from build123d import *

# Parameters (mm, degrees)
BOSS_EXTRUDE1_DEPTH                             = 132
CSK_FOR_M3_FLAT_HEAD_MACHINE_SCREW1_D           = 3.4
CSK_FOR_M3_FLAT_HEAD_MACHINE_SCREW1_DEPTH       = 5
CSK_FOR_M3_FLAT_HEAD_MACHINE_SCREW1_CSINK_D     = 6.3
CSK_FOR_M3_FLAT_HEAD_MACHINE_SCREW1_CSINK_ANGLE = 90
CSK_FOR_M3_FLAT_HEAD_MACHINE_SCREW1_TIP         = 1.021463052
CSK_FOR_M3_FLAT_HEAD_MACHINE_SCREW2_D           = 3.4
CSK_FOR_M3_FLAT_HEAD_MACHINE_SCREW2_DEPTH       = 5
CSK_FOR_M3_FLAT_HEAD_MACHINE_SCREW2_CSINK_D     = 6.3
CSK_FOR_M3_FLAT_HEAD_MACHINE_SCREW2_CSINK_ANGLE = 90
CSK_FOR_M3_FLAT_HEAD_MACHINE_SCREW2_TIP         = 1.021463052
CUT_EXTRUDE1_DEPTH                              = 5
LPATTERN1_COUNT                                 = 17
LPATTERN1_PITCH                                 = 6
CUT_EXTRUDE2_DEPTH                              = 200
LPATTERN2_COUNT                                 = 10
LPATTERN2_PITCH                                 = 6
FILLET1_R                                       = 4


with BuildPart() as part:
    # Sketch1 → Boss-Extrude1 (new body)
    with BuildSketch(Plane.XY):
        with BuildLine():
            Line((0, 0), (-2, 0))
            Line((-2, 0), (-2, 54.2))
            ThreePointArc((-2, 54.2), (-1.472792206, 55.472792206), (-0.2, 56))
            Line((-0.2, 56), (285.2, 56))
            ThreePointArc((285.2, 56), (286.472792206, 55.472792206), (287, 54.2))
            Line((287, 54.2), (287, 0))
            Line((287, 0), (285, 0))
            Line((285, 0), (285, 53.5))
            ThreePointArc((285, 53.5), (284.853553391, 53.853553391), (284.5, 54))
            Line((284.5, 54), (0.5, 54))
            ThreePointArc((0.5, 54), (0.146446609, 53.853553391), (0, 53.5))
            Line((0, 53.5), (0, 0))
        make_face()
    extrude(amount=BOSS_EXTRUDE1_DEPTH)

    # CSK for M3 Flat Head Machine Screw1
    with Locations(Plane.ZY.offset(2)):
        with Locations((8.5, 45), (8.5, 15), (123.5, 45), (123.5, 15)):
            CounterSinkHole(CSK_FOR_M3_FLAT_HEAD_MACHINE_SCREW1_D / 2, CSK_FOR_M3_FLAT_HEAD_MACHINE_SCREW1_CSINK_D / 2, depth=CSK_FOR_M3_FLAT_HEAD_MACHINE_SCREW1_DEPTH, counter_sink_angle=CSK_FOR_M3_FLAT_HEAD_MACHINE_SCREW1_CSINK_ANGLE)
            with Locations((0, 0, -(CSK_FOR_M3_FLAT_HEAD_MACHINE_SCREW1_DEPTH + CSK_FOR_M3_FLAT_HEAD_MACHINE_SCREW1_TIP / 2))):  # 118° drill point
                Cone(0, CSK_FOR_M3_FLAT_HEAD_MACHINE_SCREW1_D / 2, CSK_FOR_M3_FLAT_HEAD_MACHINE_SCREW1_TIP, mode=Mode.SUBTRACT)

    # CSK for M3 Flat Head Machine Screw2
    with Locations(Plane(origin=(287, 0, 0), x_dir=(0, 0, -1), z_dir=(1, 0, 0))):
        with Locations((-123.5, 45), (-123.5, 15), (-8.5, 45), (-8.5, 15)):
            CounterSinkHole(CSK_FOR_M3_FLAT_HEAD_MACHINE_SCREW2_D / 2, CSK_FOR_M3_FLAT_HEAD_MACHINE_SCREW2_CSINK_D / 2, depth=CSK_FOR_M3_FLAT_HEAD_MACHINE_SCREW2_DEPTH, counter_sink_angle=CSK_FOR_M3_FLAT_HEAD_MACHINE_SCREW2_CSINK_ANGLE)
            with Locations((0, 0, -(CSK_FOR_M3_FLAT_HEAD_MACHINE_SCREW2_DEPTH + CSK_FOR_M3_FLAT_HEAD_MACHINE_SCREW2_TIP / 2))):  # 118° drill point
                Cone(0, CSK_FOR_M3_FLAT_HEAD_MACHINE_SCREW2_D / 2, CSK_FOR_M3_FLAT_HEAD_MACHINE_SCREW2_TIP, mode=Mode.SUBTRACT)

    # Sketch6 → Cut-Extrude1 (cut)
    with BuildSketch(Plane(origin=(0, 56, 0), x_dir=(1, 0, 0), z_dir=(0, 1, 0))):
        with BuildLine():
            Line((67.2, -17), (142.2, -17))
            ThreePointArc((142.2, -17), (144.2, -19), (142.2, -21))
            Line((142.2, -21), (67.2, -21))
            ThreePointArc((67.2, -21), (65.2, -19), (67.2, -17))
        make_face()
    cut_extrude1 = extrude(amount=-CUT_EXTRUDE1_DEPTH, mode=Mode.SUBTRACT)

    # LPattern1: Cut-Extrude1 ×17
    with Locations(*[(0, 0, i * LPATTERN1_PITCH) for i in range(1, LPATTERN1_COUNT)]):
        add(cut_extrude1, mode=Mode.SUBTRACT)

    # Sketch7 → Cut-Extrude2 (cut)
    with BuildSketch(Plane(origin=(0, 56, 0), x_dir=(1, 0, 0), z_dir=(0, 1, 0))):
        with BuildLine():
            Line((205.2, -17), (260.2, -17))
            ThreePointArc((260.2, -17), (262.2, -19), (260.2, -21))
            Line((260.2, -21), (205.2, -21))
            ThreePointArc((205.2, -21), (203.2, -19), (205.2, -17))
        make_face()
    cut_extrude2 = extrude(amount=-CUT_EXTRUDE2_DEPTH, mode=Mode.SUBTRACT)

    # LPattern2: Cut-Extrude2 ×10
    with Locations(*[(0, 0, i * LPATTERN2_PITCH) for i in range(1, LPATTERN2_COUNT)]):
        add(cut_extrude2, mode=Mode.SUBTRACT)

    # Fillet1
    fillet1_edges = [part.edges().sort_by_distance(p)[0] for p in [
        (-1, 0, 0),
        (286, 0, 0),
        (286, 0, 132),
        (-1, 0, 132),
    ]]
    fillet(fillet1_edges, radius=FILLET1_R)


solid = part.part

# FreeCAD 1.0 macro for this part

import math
import FreeCAD as App
import Part
import Sketcher
Q = App.Units.Quantity


def edges_at(feature, points):
    """Names of the edges that pass closest to the given points."""
    edges = feature.Shape.Edges
    near = lambda p: min(range(len(edges)), key=lambda i: edges[i].distToShape(Part.Vertex(*p))[0])
    return sorted({f"Edge{near(p) + 1}" for p in points})

doc = App.newDocument("Part")
body = doc.addObject("PartDesign::Body", "Body")

# Sketch on XY plane
sketch1 = body.newObject("Sketcher::SketchObject", "Sketch")
sketch1.AttachmentSupport = (doc.getObject("XY_Plane"), [""])
sketch1.MapMode = "FlatFace"
sketch1.addGeometry([
    Part.LineSegment(App.Vector(-2, 0, 0), App.Vector(0, 0, 0)),  # 0
    Part.LineSegment(App.Vector(0, 0, 0), App.Vector(0, 53.5, 0)),  # 1
    Part.ArcOfCircle(Part.Circle(App.Vector(0.5, 53.5, 0), App.Vector(0, 0, 1), 0.5), math.radians(90), math.radians(180)),  # 2
    Part.LineSegment(App.Vector(0.5, 54, 0), App.Vector(284.5, 54, 0)),  # 3
    Part.ArcOfCircle(Part.Circle(App.Vector(284.5, 53.5, 0), App.Vector(0, 0, 1), 0.5), math.radians(0), math.radians(90)),  # 4
    Part.LineSegment(App.Vector(285, 53.5, 0), App.Vector(285, 0, 0)),  # 5
    Part.LineSegment(App.Vector(285, 0, 0), App.Vector(287, 0, 0)),  # 6
    Part.LineSegment(App.Vector(287, 0, 0), App.Vector(287, 54.2, 0)),  # 7
    Part.ArcOfCircle(Part.Circle(App.Vector(285.2, 54.2, 0), App.Vector(0, 0, 1), 1.8), math.radians(0), math.radians(90)),  # 8
    Part.LineSegment(App.Vector(285.2, 56, 0), App.Vector(-0.2, 56, 0)),  # 9
    Part.ArcOfCircle(Part.Circle(App.Vector(-0.2, 54.2, 0), App.Vector(0, 0, 1), 1.8), math.radians(90), math.radians(180)),  # 10
    Part.LineSegment(App.Vector(-2, 54.2, 0), App.Vector(-2, 0, 0)),  # 11
], False)
sketch1.addConstraint([
    Sketcher.Constraint("Coincident", 0, 2, 1, 1),
    Sketcher.Constraint("Tangent", 1, 2, 2, 2),
    Sketcher.Constraint("Tangent", 2, 1, 3, 1),
    Sketcher.Constraint("Tangent", 3, 2, 4, 2),
    Sketcher.Constraint("Tangent", 4, 1, 5, 1),
    Sketcher.Constraint("Coincident", 5, 2, 6, 1),
    Sketcher.Constraint("Coincident", 6, 2, 7, 1),
    Sketcher.Constraint("Tangent", 7, 2, 8, 1),
    Sketcher.Constraint("Tangent", 8, 2, 9, 1),
    Sketcher.Constraint("Tangent", 9, 2, 10, 1),
    Sketcher.Constraint("Tangent", 10, 2, 11, 1),
    Sketcher.Constraint("Coincident", 11, 2, 0, 1),
    Sketcher.Constraint("Horizontal", 0),
    Sketcher.Constraint("Vertical", 1),
    Sketcher.Constraint("Horizontal", 3),
    Sketcher.Constraint("Vertical", 5),
    Sketcher.Constraint("Horizontal", 6),
    Sketcher.Constraint("Vertical", 7),
    Sketcher.Constraint("Horizontal", 9),
    Sketcher.Constraint("Vertical", 11),
    Sketcher.Constraint("Coincident", 0, 2, -1, 1),
    Sketcher.Constraint("Equal", 2, 4),
    Sketcher.Constraint("Equal", 8, 10),
    Sketcher.Constraint("PointOnObject", 5, 2, -1),
    Sketcher.Constraint("Equal", 0, 6),
    Sketcher.Constraint("Radius", 2, Q("0.5 mm")),
    Sketcher.Constraint("Radius", 8, Q("1.8 mm")),
    Sketcher.Constraint("DistanceX", 0, 1, 0, 2, Q("2 mm")),
    Sketcher.Constraint("DistanceX", 3, 1, 3, 2, Q("284 mm")),
    Sketcher.Constraint("DistanceY", 1, 1, 1, 2, Q("53.5 mm")),
    Sketcher.Constraint("DistanceY", 7, 1, 7, 2, Q("54.2 mm")),
])
pad1 = body.newObject("PartDesign::Pad", "Pad")
pad1.Profile = sketch1
pad1.Length = 132

# Sketch on YZ plane
sketch2 = body.newObject("Sketcher::SketchObject", "Sketch001")
sketch2.AttachmentSupport = (doc.getObject("YZ_Plane"), [""])
sketch2.MapMode = "FlatFace"
sketch2.AttachmentOffset = App.Placement(App.Vector(0, 0, -2), App.Rotation())
sketch2.addGeometry([
    Part.Circle(App.Vector(45, 8.5, 0), App.Vector(0, 0, 1), 1.7),
    Part.Circle(App.Vector(15, 8.5, 0), App.Vector(0, 0, 1), 1.7),
    Part.Circle(App.Vector(45, 123.5, 0), App.Vector(0, 0, 1), 1.7),
    Part.Circle(App.Vector(15, 123.5, 0), App.Vector(0, 0, 1), 1.7),
], False)
sketch2.addConstraint([
    Sketcher.Constraint("Equal", 0, 1),
    Sketcher.Constraint("Equal", 1, 2),
    Sketcher.Constraint("Equal", 2, 3),
    Sketcher.Constraint("Horizontal", 0, 3, 1, 3),
    Sketcher.Constraint("Horizontal", 2, 3, 3, 3),
    Sketcher.Constraint("Vertical", 0, 3, 2, 3),
    Sketcher.Constraint("Vertical", 1, 3, 3, 3),
    Sketcher.Constraint("Diameter", 0, Q("3.4 mm")),
    Sketcher.Constraint("DistanceX", -1, 1, 0, 3, Q("45 mm")),
    Sketcher.Constraint("DistanceX", -1, 1, 1, 3, Q("15 mm")),
    Sketcher.Constraint("DistanceY", 0, 3, 2, 3, Q("115 mm")),
    Sketcher.Constraint("DistanceY", -1, 1, 0, 3, Q("8.5 mm")),
])
doc.recompute()
hole = body.newObject("PartDesign::Hole", "Hole")
hole.Profile = sketch2
hole.ThreadType = "None"
hole.Diameter = 3.4
hole.DepthType = "Dimension"
hole.Depth = 5
hole.DrillPoint = "Angled"
hole.DrillPointAngle = 118
hole.HoleCutType = "Countersink"
hole.HoleCutDiameter = 6.3
hole.HoleCutCountersinkAngle = 90
hole.Reversed = True

# Sketch on YZ plane
sketch3 = body.newObject("Sketcher::SketchObject", "Sketch002")
sketch3.AttachmentSupport = (doc.getObject("YZ_Plane"), [""])
sketch3.MapMode = "FlatFace"
sketch3.AttachmentOffset = App.Placement(App.Vector(0, 0, 287), App.Rotation())
sketch3.addGeometry([
    Part.Circle(App.Vector(45, 123.5, 0), App.Vector(0, 0, 1), 1.7),
    Part.Circle(App.Vector(15, 123.5, 0), App.Vector(0, 0, 1), 1.7),
    Part.Circle(App.Vector(45, 8.5, 0), App.Vector(0, 0, 1), 1.7),
    Part.Circle(App.Vector(15, 8.5, 0), App.Vector(0, 0, 1), 1.7),
], False)
sketch3.addConstraint([
    Sketcher.Constraint("Equal", 0, 1),
    Sketcher.Constraint("Equal", 1, 2),
    Sketcher.Constraint("Equal", 2, 3),
    Sketcher.Constraint("Horizontal", 0, 3, 1, 3),
    Sketcher.Constraint("Horizontal", 2, 3, 3, 3),
    Sketcher.Constraint("Vertical", 0, 3, 2, 3),
    Sketcher.Constraint("Vertical", 1, 3, 3, 3),
    Sketcher.Constraint("Diameter", 0, Q("3.4 mm")),
    Sketcher.Constraint("DistanceX", -1, 1, 0, 3, Q("45 mm")),
    Sketcher.Constraint("DistanceX", -1, 1, 1, 3, Q("15 mm")),
    Sketcher.Constraint("DistanceY", 2, 3, 0, 3, Q("115 mm")),
    Sketcher.Constraint("DistanceY", -1, 1, 0, 3, Q("123.5 mm")),
])
doc.recompute()
hole2 = body.newObject("PartDesign::Hole", "Hole001")
hole2.Profile = sketch3
hole2.ThreadType = "None"
hole2.Diameter = 3.4
hole2.DepthType = "Dimension"
hole2.Depth = 5
hole2.DrillPoint = "Angled"
hole2.DrillPointAngle = 118
hole2.HoleCutType = "Countersink"
hole2.HoleCutDiameter = 6.3
hole2.HoleCutCountersinkAngle = 90

# Sketch on XZ plane
sketch4 = body.newObject("Sketcher::SketchObject", "Sketch003")
sketch4.AttachmentSupport = (doc.getObject("XZ_Plane"), [""])
sketch4.MapMode = "FlatFace"
sketch4.AttachmentOffset = App.Placement(App.Vector(0, 0, -56), App.Rotation())
sketch4.addGeometry([
    Part.LineSegment(App.Vector(142.2, 17, 0), App.Vector(67.2, 17, 0)),
    Part.ArcOfCircle(Part.Circle(App.Vector(67.2, 19, 0), App.Vector(0, 0, 1), 2), math.radians(90), math.radians(270)),
    Part.LineSegment(App.Vector(67.2, 21, 0), App.Vector(142.2, 21, 0)),
    Part.ArcOfCircle(Part.Circle(App.Vector(142.2, 19, 0), App.Vector(0, 0, 1), 2), math.radians(-90), math.radians(90)),
], False)
sketch4.addConstraint([
    Sketcher.Constraint("Tangent", 0, 2, 1, 2),
    Sketcher.Constraint("Tangent", 1, 1, 2, 1),
    Sketcher.Constraint("Tangent", 2, 2, 3, 2),
    Sketcher.Constraint("Tangent", 3, 1, 0, 1),
    Sketcher.Constraint("Horizontal", 0),
    Sketcher.Constraint("Horizontal", 2),
    Sketcher.Constraint("Radius", 1, Q("2 mm")),
    Sketcher.Constraint("DistanceX", 0, 2, 0, 1, Q("75 mm")),
    Sketcher.Constraint("DistanceY", -1, 1, 1, 3, Q("19 mm")),
    Sketcher.Constraint("DistanceX", -1, 1, 1, 3, Q("67.2 mm")),
])
pocket1 = body.newObject("PartDesign::Pocket", "Pocket")
pocket1.Profile = sketch4
pocket1.Length = 5
pocket1.Reversed = True
doc.recompute()

linearpattern = body.newObject("PartDesign::LinearPattern", "LinearPattern")
linearpattern.Originals = [pocket1]
linearpattern.Direction = (doc.getObject("Z_Axis"), [""])
linearpattern.Mode = "offset"
linearpattern.Offset = 6
linearpattern.Occurrences = 17
body.Tip = linearpattern

# Sketch on XZ plane
sketch5 = body.newObject("Sketcher::SketchObject", "Sketch004")
sketch5.AttachmentSupport = (doc.getObject("XZ_Plane"), [""])
sketch5.MapMode = "FlatFace"
sketch5.AttachmentOffset = App.Placement(App.Vector(0, 0, -56), App.Rotation())
sketch5.addGeometry([
    Part.LineSegment(App.Vector(260.2, 17, 0), App.Vector(205.2, 17, 0)),
    Part.ArcOfCircle(Part.Circle(App.Vector(205.2, 19, 0), App.Vector(0, 0, 1), 2), math.radians(90), math.radians(270)),
    Part.LineSegment(App.Vector(205.2, 21, 0), App.Vector(260.2, 21, 0)),
    Part.ArcOfCircle(Part.Circle(App.Vector(260.2, 19, 0), App.Vector(0, 0, 1), 2), math.radians(-90), math.radians(90)),
], False)
sketch5.addConstraint([
    Sketcher.Constraint("Tangent", 0, 2, 1, 2),
    Sketcher.Constraint("Tangent", 1, 1, 2, 1),
    Sketcher.Constraint("Tangent", 2, 2, 3, 2),
    Sketcher.Constraint("Tangent", 3, 1, 0, 1),
    Sketcher.Constraint("Horizontal", 0),
    Sketcher.Constraint("Horizontal", 2),
    Sketcher.Constraint("Radius", 1, Q("2 mm")),
    Sketcher.Constraint("DistanceX", 0, 2, 0, 1, Q("55 mm")),
    Sketcher.Constraint("DistanceY", -1, 1, 1, 3, Q("19 mm")),
    Sketcher.Constraint("DistanceX", -1, 1, 1, 3, Q("205.2 mm")),
])
pocket2 = body.newObject("PartDesign::Pocket", "Pocket001")
pocket2.Profile = sketch5
pocket2.Length = 200
pocket2.Reversed = True
doc.recompute()

linearpattern2 = body.newObject("PartDesign::LinearPattern", "LinearPattern001")
linearpattern2.Originals = [pocket2]
linearpattern2.Direction = (doc.getObject("Z_Axis"), [""])
linearpattern2.Mode = "offset"
linearpattern2.Offset = 6
linearpattern2.Occurrences = 10
body.Tip = linearpattern2
doc.recompute()

fillet = body.newObject("PartDesign::Fillet", "Fillet")
fillet.Base = (linearpattern2, edges_at(linearpattern2, [
    (-1, 0, 0),
    (286, 0, 0),
    (286, 0, 132),
    (-1, 0, 132),
]))
fillet.Radius = 4

doc.recompute()
